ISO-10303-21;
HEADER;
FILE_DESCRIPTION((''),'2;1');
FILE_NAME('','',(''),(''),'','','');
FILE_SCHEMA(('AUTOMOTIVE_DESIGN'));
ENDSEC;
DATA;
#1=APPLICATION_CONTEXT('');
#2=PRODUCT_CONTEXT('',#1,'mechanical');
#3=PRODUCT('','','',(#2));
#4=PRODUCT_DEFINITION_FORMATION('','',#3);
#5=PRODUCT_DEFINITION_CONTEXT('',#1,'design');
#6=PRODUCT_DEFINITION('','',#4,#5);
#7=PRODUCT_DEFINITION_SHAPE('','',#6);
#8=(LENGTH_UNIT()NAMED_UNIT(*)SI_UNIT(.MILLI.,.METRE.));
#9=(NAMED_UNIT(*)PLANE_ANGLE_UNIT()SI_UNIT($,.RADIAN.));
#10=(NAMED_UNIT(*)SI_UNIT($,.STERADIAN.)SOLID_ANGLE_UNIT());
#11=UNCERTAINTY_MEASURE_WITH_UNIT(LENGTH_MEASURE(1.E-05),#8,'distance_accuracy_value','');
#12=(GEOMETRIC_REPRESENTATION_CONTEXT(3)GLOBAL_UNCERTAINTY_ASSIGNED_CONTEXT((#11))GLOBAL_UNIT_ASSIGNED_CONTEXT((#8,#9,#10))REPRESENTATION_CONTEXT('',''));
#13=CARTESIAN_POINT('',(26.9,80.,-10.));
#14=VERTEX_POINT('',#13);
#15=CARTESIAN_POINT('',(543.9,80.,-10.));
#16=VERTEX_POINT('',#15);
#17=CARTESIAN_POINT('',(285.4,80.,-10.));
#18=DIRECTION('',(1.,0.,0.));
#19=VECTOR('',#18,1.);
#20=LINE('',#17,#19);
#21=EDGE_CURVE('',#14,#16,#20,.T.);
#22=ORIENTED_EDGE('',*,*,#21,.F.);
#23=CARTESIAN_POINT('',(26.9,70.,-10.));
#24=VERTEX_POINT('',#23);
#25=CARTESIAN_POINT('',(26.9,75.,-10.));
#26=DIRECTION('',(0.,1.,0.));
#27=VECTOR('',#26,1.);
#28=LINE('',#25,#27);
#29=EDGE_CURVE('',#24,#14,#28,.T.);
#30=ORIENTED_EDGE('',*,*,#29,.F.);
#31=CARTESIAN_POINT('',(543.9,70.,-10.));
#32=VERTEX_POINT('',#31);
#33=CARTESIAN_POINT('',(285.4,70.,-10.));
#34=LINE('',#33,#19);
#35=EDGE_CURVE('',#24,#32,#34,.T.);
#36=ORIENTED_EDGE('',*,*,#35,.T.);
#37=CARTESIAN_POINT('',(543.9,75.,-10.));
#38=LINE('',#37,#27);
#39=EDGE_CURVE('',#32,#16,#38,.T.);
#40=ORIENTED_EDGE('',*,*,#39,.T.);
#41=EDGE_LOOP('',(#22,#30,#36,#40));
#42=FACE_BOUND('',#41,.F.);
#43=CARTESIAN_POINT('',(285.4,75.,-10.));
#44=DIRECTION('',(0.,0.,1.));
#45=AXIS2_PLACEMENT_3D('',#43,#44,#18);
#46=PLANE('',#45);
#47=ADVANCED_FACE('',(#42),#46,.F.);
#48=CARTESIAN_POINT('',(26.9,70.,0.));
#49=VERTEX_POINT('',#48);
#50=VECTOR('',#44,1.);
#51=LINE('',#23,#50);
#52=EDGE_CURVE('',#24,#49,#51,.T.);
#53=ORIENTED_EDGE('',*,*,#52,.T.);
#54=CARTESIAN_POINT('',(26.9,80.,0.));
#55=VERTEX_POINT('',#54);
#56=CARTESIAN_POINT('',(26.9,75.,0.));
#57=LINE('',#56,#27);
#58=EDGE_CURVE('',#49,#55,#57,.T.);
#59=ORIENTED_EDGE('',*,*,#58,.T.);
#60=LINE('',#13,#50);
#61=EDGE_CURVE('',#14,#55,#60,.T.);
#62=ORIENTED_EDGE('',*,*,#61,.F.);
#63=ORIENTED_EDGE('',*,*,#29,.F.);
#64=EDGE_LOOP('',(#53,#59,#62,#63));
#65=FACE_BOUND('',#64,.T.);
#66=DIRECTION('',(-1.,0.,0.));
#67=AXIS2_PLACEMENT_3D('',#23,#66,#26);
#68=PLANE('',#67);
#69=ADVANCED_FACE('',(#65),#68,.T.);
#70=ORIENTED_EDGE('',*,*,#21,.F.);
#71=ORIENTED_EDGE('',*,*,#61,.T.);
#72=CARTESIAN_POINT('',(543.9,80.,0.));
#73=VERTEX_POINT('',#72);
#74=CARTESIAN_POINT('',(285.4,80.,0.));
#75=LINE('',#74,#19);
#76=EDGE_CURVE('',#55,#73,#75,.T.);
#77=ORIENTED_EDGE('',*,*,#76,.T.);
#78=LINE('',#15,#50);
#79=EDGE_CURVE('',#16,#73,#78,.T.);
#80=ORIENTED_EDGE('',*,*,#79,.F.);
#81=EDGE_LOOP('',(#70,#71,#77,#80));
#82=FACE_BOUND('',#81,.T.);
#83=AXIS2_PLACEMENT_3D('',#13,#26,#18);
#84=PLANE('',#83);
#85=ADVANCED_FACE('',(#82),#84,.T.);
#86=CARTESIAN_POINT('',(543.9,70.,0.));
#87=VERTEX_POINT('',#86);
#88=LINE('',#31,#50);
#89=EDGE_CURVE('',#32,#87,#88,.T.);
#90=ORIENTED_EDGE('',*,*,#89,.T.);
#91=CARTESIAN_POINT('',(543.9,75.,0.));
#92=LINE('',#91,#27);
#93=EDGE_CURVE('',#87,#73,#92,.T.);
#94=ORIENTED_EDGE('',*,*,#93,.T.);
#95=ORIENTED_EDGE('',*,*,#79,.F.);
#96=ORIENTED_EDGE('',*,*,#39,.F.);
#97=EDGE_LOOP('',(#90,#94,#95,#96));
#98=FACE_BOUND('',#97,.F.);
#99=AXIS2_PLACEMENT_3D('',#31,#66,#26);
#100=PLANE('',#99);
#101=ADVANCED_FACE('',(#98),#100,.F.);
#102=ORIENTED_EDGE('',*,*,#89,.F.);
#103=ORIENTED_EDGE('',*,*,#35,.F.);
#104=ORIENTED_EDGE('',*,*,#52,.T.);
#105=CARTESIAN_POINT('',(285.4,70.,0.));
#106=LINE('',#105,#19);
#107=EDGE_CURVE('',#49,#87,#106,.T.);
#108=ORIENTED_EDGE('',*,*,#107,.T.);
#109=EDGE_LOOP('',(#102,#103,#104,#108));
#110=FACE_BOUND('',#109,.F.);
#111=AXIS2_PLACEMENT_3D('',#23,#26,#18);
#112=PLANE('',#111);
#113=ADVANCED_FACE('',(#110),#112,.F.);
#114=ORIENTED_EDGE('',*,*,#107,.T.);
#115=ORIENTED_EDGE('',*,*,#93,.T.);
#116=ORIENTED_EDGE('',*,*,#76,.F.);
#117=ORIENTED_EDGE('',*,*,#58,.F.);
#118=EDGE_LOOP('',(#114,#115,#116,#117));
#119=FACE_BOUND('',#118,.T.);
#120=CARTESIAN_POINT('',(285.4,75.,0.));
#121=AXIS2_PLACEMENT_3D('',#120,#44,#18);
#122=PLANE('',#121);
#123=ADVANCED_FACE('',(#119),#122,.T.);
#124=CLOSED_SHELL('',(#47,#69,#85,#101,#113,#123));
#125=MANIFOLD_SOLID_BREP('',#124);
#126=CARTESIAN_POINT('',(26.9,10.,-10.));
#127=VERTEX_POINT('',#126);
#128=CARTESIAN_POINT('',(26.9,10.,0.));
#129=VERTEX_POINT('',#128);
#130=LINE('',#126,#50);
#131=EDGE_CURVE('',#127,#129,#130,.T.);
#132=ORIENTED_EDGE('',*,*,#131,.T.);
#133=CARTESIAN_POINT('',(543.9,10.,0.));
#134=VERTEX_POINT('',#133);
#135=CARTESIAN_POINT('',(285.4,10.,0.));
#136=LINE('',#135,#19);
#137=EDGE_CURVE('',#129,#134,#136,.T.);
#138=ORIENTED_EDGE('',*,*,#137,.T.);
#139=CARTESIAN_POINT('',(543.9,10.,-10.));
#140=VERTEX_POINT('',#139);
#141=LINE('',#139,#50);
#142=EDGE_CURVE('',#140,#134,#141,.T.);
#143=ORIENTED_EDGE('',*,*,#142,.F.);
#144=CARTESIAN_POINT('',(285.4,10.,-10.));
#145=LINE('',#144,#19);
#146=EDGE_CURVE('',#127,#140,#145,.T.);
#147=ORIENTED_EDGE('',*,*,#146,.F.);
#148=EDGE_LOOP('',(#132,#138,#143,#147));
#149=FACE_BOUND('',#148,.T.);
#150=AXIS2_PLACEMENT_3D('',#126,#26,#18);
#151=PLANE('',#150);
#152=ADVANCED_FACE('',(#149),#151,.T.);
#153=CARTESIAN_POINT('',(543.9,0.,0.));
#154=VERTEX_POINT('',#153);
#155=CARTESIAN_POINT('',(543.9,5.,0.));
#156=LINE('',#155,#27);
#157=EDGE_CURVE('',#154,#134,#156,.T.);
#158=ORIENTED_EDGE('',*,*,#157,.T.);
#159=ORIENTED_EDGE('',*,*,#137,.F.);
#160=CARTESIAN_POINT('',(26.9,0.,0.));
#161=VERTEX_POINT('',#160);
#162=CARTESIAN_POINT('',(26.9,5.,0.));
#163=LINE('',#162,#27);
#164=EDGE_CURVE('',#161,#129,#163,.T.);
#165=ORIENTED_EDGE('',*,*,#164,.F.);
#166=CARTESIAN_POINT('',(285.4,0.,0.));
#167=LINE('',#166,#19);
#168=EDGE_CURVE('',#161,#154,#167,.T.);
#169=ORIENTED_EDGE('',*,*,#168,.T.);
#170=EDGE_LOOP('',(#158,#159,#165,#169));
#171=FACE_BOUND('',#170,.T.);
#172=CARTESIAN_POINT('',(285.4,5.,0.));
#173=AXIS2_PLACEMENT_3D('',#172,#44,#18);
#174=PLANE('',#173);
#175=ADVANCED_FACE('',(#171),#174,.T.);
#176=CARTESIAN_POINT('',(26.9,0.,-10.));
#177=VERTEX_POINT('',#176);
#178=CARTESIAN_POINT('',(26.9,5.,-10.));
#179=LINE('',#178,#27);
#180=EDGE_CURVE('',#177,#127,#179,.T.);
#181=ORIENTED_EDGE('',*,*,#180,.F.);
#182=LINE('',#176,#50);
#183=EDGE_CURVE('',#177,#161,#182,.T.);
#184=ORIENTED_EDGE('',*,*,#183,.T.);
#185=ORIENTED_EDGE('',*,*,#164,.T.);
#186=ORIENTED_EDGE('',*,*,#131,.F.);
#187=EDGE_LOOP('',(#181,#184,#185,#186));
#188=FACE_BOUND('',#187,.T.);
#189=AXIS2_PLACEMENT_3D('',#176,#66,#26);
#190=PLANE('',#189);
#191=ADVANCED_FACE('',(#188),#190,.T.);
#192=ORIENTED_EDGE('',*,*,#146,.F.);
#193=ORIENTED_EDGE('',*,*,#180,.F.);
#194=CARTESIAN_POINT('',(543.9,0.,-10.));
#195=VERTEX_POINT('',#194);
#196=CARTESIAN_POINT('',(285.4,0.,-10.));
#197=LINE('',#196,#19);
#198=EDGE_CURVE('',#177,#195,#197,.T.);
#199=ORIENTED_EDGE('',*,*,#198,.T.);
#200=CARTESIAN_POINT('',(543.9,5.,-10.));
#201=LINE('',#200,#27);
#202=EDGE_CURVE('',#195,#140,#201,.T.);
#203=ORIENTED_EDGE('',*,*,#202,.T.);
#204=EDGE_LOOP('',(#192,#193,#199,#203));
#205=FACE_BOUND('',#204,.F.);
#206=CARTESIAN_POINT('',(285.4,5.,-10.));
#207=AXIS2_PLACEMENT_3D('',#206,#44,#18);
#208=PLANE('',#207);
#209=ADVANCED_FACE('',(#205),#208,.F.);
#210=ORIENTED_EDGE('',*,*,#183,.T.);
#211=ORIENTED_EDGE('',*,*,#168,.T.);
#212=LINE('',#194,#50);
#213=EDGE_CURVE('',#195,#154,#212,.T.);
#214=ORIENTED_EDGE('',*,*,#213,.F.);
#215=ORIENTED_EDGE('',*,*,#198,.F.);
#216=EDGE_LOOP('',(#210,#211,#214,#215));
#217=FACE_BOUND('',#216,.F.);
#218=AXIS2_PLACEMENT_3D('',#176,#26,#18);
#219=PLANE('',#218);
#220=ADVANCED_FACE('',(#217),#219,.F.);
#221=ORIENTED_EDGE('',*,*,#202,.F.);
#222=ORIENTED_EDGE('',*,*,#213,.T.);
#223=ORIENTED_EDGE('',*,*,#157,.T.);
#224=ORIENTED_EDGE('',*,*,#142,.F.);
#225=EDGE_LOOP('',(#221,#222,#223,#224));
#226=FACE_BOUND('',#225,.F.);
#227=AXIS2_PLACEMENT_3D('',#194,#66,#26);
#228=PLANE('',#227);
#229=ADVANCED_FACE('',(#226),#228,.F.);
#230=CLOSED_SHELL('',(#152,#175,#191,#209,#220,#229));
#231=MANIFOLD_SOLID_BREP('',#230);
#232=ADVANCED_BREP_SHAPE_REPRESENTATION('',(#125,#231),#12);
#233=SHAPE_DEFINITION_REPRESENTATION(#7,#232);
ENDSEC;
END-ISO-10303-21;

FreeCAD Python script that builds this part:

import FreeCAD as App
import Part
import Sketcher

doc = App.newDocument("Part")
body = doc.addObject("PartDesign::Body", "Body")

sketch1 = doc.addObject("Sketcher::SketchObject", "Sketch")
body.addObject(sketch1)
sketch1.AttachmentSupport = (doc.XY_Plane, [""])
sketch1.MapMode = "FlatFace"
sketch1.AttachmentOffset = App.Placement(App.Vector(0, 0, -10), App.Rotation())
sketch1.addGeometry([
    Part.LineSegment(App.Vector(26.9, 10, 0), App.Vector(26.9, 0, 0)),
    Part.LineSegment(App.Vector(26.9, 0, 0), App.Vector(543.9, 0, 0)),
    Part.LineSegment(App.Vector(543.9, 0, 0), App.Vector(543.9, 10, 0)),
    Part.LineSegment(App.Vector(543.9, 10, 0), App.Vector(26.9, 10, 0)),
], False)
sketch1.addConstraint([
    Sketcher.Constraint("Coincident", 0, 2, 1, 1),
    Sketcher.Constraint("Coincident", 1, 2, 2, 1),
    Sketcher.Constraint("Coincident", 2, 2, 3, 1),
    Sketcher.Constraint("Coincident", 3, 2, 0, 1),
    Sketcher.Constraint("Vertical", 0),
    Sketcher.Constraint("Horizontal", 1),
    Sketcher.Constraint("Vertical", 2),
    Sketcher.Constraint("Horizontal", 3),
    Sketcher.Constraint("PointOnObject", 0, 2, -1),
    Sketcher.Constraint("DistanceX", 1, 1, 1, 2, 517.0),
    Sketcher.Constraint("DistanceY", 0, 2, 0, 1, 10.0),
    Sketcher.Constraint("DistanceX", -1, 1, 0, 2, 26.9),
])
pad1 = doc.addObject("PartDesign::Pad", "Pad")
body.addObject(pad1)
pad1.Profile = sketch1
pad1.Length = 10
body2 = doc.addObject("PartDesign::Body", "Body001")
body2.AllowCompound = True

sketch2 = doc.addObject("Sketcher::SketchObject", "Sketch001")
body2.addObject(sketch2)
sketch2.AttachmentSupport = (doc.getObject("XY_Plane001"), [""])
sketch2.MapMode = "FlatFace"
sketch2.AttachmentOffset = App.Placement(App.Vector(0, 0, -10), App.Rotation())
sketch2.addGeometry([
    Part.LineSegment(App.Vector(26.9, 80, 0), App.Vector(26.9, 70, 0)),
    Part.LineSegment(App.Vector(26.9, 70, 0), App.Vector(543.9, 70, 0)),
    Part.LineSegment(App.Vector(543.9, 70, 0), App.Vector(543.9, 80, 0)),
    Part.LineSegment(App.Vector(543.9, 80, 0), App.Vector(26.9, 80, 0)),
], False)
sketch2.addConstraint([
    Sketcher.Constraint("Coincident", 0, 2, 1, 1),
    Sketcher.Constraint("Coincident", 1, 2, 2, 1),
    Sketcher.Constraint("Coincident", 2, 2, 3, 1),
    Sketcher.Constraint("Coincident", 3, 2, 0, 1),
    Sketcher.Constraint("Vertical", 0),
    Sketcher.Constraint("Horizontal", 1),
    Sketcher.Constraint("Vertical", 2),
    Sketcher.Constraint("Horizontal", 3),
    Sketcher.Constraint("DistanceX", 1, 1, 1, 2, 517.0),
    Sketcher.Constraint("DistanceY", 0, 2, 0, 1, 10.0),
    Sketcher.Constraint("DistanceY", -1, 1, 0, 2, 70.0),
    Sketcher.Constraint("DistanceX", -1, 1, 0, 2, 26.9),
])
pad2 = doc.addObject("PartDesign::Pad", "Pad001")
body2.addObject(pad2)
pad2.Profile = sketch2
pad2.Length = 10
doc.recompute()

boolean = doc.addObject("PartDesign::Boolean", "Boolean")
body2.addObject(boolean)
boolean.Type = "Fuse"
boolean.addObjects([body])

doc.recompute()
